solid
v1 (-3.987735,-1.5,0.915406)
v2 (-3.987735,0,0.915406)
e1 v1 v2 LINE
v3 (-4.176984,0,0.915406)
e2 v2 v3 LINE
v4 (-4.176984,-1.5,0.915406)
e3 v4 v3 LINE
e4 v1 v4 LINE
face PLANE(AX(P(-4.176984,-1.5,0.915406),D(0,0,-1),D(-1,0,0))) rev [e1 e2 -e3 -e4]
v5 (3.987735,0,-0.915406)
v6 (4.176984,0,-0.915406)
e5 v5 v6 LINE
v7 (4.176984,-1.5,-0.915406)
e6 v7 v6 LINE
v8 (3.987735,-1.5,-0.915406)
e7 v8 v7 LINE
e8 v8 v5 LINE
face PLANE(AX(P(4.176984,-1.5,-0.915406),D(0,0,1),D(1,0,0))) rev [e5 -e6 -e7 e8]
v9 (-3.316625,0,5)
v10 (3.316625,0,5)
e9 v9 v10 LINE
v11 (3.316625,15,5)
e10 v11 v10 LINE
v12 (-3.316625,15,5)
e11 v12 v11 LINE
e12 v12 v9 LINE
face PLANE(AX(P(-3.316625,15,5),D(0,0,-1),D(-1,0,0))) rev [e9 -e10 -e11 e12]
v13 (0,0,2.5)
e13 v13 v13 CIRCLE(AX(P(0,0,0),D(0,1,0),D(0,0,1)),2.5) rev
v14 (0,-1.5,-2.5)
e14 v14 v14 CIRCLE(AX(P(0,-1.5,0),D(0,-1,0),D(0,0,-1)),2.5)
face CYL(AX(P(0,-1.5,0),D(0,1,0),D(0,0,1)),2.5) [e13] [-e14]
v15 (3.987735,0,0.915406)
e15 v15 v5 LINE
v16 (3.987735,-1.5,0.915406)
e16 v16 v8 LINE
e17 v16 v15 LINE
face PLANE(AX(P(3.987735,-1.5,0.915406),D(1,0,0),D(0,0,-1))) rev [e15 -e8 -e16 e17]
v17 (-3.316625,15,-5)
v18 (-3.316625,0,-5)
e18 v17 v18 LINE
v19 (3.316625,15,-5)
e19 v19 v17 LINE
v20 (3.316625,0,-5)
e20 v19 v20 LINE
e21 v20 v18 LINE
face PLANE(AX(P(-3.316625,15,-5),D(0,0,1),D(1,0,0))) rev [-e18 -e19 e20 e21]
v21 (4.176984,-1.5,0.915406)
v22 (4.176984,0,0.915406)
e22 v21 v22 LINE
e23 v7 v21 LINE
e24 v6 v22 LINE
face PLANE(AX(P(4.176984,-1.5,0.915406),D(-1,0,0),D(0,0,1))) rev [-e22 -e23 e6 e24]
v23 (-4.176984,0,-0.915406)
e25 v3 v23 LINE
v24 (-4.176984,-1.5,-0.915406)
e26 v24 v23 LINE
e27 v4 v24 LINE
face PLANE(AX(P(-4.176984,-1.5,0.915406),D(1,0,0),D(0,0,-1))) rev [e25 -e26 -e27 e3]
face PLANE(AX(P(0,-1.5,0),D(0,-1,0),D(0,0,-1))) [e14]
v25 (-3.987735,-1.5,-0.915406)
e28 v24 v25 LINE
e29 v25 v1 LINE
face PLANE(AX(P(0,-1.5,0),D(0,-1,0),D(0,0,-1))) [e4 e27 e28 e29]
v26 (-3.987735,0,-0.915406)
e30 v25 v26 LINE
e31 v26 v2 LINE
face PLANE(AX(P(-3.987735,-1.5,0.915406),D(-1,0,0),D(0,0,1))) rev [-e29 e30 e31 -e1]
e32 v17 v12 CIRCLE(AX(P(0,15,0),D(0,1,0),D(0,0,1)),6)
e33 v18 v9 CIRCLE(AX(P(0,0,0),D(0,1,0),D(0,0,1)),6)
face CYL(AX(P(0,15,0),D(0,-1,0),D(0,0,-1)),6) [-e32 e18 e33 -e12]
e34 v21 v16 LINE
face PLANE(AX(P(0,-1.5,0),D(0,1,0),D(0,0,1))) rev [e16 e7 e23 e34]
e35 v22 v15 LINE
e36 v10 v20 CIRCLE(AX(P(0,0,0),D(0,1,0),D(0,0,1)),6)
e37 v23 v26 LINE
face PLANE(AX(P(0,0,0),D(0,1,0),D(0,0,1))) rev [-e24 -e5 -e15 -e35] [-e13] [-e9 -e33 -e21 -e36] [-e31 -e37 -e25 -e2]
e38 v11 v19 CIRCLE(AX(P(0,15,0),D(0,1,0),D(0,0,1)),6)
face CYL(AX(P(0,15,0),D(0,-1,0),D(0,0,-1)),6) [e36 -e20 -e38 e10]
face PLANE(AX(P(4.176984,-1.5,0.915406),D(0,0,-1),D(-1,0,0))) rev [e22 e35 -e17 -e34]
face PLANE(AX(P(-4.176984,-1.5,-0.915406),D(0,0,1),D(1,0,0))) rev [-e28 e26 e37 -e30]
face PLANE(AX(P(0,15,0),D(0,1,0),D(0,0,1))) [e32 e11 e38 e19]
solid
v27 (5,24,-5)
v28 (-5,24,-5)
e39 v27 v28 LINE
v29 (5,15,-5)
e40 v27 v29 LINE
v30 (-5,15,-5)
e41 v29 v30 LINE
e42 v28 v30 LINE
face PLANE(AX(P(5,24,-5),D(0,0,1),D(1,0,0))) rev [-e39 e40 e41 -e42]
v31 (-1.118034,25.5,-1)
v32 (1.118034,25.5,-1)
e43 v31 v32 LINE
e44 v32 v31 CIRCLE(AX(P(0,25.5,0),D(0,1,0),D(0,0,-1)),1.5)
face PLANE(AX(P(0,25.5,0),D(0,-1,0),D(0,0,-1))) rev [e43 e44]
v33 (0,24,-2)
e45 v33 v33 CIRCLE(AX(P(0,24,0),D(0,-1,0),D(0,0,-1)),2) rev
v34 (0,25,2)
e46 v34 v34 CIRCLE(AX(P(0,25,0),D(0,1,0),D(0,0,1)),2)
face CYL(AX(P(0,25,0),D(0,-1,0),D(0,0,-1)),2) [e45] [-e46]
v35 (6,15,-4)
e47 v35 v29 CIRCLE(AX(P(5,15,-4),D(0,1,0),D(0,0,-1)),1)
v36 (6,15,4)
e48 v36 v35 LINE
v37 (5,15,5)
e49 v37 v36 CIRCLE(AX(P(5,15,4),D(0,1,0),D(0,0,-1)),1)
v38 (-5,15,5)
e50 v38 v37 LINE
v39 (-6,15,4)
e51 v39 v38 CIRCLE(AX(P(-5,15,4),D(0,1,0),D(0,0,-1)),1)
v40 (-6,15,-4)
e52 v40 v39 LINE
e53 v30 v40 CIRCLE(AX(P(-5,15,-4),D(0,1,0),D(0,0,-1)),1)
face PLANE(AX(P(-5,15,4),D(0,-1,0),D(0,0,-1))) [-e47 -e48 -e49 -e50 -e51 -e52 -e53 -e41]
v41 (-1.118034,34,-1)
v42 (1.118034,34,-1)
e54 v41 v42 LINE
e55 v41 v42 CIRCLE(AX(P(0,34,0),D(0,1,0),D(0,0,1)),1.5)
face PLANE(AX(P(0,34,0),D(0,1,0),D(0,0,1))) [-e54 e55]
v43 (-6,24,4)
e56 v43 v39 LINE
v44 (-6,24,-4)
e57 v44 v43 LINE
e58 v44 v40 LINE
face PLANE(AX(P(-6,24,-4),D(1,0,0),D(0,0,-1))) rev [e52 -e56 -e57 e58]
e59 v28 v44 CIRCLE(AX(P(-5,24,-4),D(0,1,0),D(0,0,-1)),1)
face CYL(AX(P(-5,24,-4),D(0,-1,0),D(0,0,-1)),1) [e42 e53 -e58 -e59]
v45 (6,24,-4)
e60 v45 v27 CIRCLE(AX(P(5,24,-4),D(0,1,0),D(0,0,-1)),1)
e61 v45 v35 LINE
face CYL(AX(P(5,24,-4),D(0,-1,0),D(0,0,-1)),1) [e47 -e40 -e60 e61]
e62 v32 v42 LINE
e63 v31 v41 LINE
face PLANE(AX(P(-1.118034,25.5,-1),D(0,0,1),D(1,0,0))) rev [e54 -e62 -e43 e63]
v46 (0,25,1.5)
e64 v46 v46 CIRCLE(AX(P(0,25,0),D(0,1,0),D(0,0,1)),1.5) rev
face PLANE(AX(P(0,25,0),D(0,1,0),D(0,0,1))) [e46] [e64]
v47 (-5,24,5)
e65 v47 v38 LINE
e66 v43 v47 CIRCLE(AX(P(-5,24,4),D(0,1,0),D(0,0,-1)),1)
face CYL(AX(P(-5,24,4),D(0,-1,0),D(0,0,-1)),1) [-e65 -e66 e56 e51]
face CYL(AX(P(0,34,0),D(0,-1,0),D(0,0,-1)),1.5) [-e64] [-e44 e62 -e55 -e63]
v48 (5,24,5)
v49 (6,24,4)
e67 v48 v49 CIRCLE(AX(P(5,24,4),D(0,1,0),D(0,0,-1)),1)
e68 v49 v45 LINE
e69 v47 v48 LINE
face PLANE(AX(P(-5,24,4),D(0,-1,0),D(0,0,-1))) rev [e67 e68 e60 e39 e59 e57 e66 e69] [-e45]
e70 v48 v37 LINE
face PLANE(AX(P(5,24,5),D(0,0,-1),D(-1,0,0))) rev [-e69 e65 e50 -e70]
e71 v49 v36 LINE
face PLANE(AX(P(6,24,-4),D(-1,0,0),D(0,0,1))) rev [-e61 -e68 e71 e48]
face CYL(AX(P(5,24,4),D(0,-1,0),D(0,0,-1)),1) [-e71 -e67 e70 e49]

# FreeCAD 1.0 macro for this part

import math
import FreeCAD as App
import Part
import Sketcher
from FreeCAD import Vector
Q = App.Units.Quantity

doc = App.newDocument("Part")
body = doc.addObject("PartDesign::Body", "Body")

# Sketch on XZ plane
sketch1 = doc.addObject("Sketcher::SketchObject", "Sketch")
body.addObject(sketch1)
sketch1.AttachmentSupport = (doc.XZ_Plane, [""])
sketch1.MapMode = "FlatFace"
sketch1.addGeometry([
    Part.LineSegment(Vector(3, -5, 0), Vector(-3, -5, 0)),
    Part.ArcOfCircle(Part.Circle(Vector(0, 0, 0), Vector(0, 0, 1), 6), math.radians(124), math.radians(236)),
    Part.LineSegment(Vector(-3, 5, 0), Vector(3, 5, 0)),
    Part.ArcOfCircle(Part.Circle(Vector(0, 0, 0), Vector(0, 0, 1), 6), math.radians(-56), math.radians(56)),
], False)
sketch1.addConstraint([
    Sketcher.Constraint("Coincident", 0, 2, 1, 2),
    Sketcher.Constraint("Coincident", 1, 1, 2, 1),
    Sketcher.Constraint("Coincident", 2, 2, 3, 2),
    Sketcher.Constraint("Coincident", 3, 1, 0, 1),
    Sketcher.Constraint("Horizontal", 0),
    Sketcher.Constraint("Horizontal", 2),
    Sketcher.Constraint("Coincident", 1, 3, -1, 1),
    Sketcher.Constraint("Coincident", 3, 3, -1, 1),
    Sketcher.Constraint("Equal", 1, 3),
    Sketcher.Constraint("Vertical", 0, 2, 1, 1),
    Sketcher.Constraint("Radius", 1, Q("6 mm")),
    Sketcher.Constraint("DistanceY", 0, 2, -1, 1, Q("5 mm")),
])
pad1 = doc.addObject("PartDesign::Pad", "Pad")
body.addObject(pad1)
pad1.Profile = sketch1
pad1.Length = 15
pad1.Reversed = True

# Sketch on XZ plane
sketch2 = doc.addObject("Sketcher::SketchObject", "Sketch001")
body.addObject(sketch2)
sketch2.AttachmentSupport = (doc.XZ_Plane, [""])
sketch2.MapMode = "FlatFace"
sketch2.addGeometry([
    Part.Circle(Vector(0, 0, 0), Vector(0, 0, 1), 2.5),  # 0
    Part.LineSegment(Vector(-3.99, -0.92, 0), Vector(-3.99, 0.92, 0)),  # 1
    Part.LineSegment(Vector(-3.99, 0.92, 0), Vector(-4.18, 0.92, 0)),  # 2
    Part.LineSegment(Vector(-4.18, 0.92, 0), Vector(-4.18, -0.92, 0)),  # 3
    Part.LineSegment(Vector(-4.18, -0.92, 0), Vector(-3.99, -0.92, 0)),  # 4
    Part.LineSegment(Vector(4.18, -0.92, 0), Vector(4.18, 0.92, 0)),  # 5
    Part.LineSegment(Vector(4.18, 0.92, 0), Vector(3.99, 0.92, 0)),  # 6
    Part.LineSegment(Vector(3.99, 0.92, 0), Vector(3.99, -0.92, 0)),  # 7
    Part.LineSegment(Vector(3.99, -0.92, 0), Vector(4.18, -0.92, 0)),  # 8
], False)
sketch2.addConstraint([
    Sketcher.Constraint("Coincident", 1, 2, 2, 1),
    Sketcher.Constraint("Coincident", 2, 2, 3, 1),
    Sketcher.Constraint("Coincident", 3, 2, 4, 1),
    Sketcher.Constraint("Coincident", 4, 2, 1, 1),
    Sketcher.Constraint("Coincident", 5, 2, 6, 1),
    Sketcher.Constraint("Coincident", 6, 2, 7, 1),
    Sketcher.Constraint("Coincident", 7, 2, 8, 1),
    Sketcher.Constraint("Coincident", 8, 2, 5, 1),
    Sketcher.Constraint("Vertical", 1),
    Sketcher.Constraint("Horizontal", 2),
    Sketcher.Constraint("Vertical", 3),
    Sketcher.Constraint("Horizontal", 4),
    Sketcher.Constraint("Vertical", 5),
    Sketcher.Constraint("Horizontal", 6),
    Sketcher.Constraint("Vertical", 7),
    Sketcher.Constraint("Horizontal", 8),
    Sketcher.Constraint("Coincident", 0, 3, -1, 1),
    Sketcher.Constraint("Symmetric", 3, 2, 5, 2, -1, 1),
    Sketcher.Constraint("Symmetric", 1, 2, 7, 2, -1, 1),
    Sketcher.Constraint("Horizontal", 2, 2, 5, 2),
    Sketcher.Constraint("Diameter", 0, Q("5 mm")),
    Sketcher.Constraint("DistanceX", 2, 2, 2, 1, Q("0.189248 mm")),
    Sketcher.Constraint("DistanceY", 1, 1, 1, 2, Q("1.830812 mm")),
    Sketcher.Constraint("DistanceX", 1, 2, 5, 2, Q("8.164719 mm")),
])
pad2 = doc.addObject("PartDesign::Pad", "Pad001")
body.addObject(pad2)
pad2.Profile = sketch2
pad2.Length = 1.5
body2 = doc.addObject("PartDesign::Body", "Body001")

# Sketch on XZ plane
sketch3 = doc.addObject("Sketcher::SketchObject", "Sketch002")
body2.addObject(sketch3)
sketch3.AttachmentSupport = (doc.getObject("XZ_Plane001"), [""])
sketch3.MapMode = "FlatFace"
sketch3.AttachmentOffset = App.Placement(Vector(0, 0, -15), App.Rotation())
sketch3.addGeometry([
    Part.LineSegment(Vector(5, -5, 0), Vector(-5, -5, 0)),  # 0
    Part.ArcOfCircle(Part.Circle(Vector(-5, -4, 0), Vector(0, 0, 1), 1), math.radians(-180), math.radians(-90)),  # 1
    Part.LineSegment(Vector(-6, -4, 0), Vector(-6, 4, 0)),  # 2
    Part.ArcOfCircle(Part.Circle(Vector(-5, 4, 0), Vector(0, 0, 1), 1), math.radians(90), math.radians(180)),  # 3
    Part.LineSegment(Vector(-5, 5, 0), Vector(5, 5, 0)),  # 4
    Part.ArcOfCircle(Part.Circle(Vector(5, 4, 0), Vector(0, 0, 1), 1), math.radians(0), math.radians(90)),  # 5
    Part.LineSegment(Vector(6, 4, 0), Vector(6, -4, 0)),  # 6
    Part.ArcOfCircle(Part.Circle(Vector(5, -4, 0), Vector(0, 0, 1), 1), math.radians(-90), math.radians(0)),  # 7
], False)
sketch3.addConstraint([
    Sketcher.Constraint("Tangent", 0, 2, 1, 2),
    Sketcher.Constraint("Tangent", 1, 1, 2, 1),
    Sketcher.Constraint("Tangent", 2, 2, 3, 2),
    Sketcher.Constraint("Tangent", 3, 1, 4, 1),
    Sketcher.Constraint("Tangent", 4, 2, 5, 2),
    Sketcher.Constraint("Tangent", 5, 1, 6, 1),
    Sketcher.Constraint("Tangent", 6, 2, 7, 2),
    Sketcher.Constraint("Tangent", 7, 1, 0, 1),
    Sketcher.Constraint("Horizontal", 0),
    Sketcher.Constraint("Vertical", 2),
    Sketcher.Constraint("Horizontal", 4),
    Sketcher.Constraint("Vertical", 6),
    Sketcher.Constraint("Equal", 1, 3),
    Sketcher.Constraint("Equal", 3, 5),
    Sketcher.Constraint("Equal", 5, 7),
    Sketcher.Constraint("Symmetric", 1, 3, 5, 3, -1, 1),
    Sketcher.Constraint("Radius", 1, Q("1 mm")),
    Sketcher.Constraint("DistanceX", 0, 2, 0, 1, Q("10 mm")),
    Sketcher.Constraint("DistanceY", 2, 1, 2, 2, Q("8 mm")),
])
pad3 = doc.addObject("PartDesign::Pad", "Pad002")
body2.addObject(pad3)
pad3.Profile = sketch3
pad3.Length = 9
pad3.Reversed = True

# Sketch on XZ plane
sketch4 = doc.addObject("Sketcher::SketchObject", "Sketch003")
body2.addObject(sketch4)
sketch4.AttachmentSupport = (doc.getObject("XZ_Plane001"), [""])
sketch4.MapMode = "FlatFace"
sketch4.AttachmentOffset = App.Placement(Vector(0, 0, -24), App.Rotation())
sketch4.addGeometry(Part.Circle(Vector(0, 0, 0), Vector(0, 0, 1), 2), False)
sketch4.addConstraint([
    Sketcher.Constraint("Coincident", 0, 3, -1, 1),
    Sketcher.Constraint("Diameter", 0, Q("4 mm")),
])
pad4 = doc.addObject("PartDesign::Pad", "Pad003")
body2.addObject(pad4)
pad4.Profile = sketch4
pad4.Length = 1
pad4.Reversed = True

# Sketch on XZ plane
sketch5 = doc.addObject("Sketcher::SketchObject", "Sketch004")
body2.addObject(sketch5)
sketch5.AttachmentSupport = (doc.getObject("XZ_Plane001"), [""])
sketch5.MapMode = "FlatFace"
sketch5.AttachmentOffset = App.Placement(Vector(0, 0, -24), App.Rotation())
sketch5.addGeometry(Part.Circle(Vector(0, 0, 0), Vector(0, 0, 1), 1.5), False)
sketch5.addConstraint([
    Sketcher.Constraint("Coincident", 0, 3, -1, 1),
    Sketcher.Constraint("Diameter", 0, Q("3 mm")),
])
pad5 = doc.addObject("PartDesign::Pad", "Pad004")
body2.addObject(pad5)
pad5.Profile = sketch5
pad5.Length = 10
pad5.Reversed = True

# Sketch on XZ plane
sketch6 = doc.addObject("Sketcher::SketchObject", "Sketch005")
body2.addObject(sketch6)
sketch6.AttachmentSupport = (doc.getObject("XZ_Plane001"), [""])
sketch6.MapMode = "FlatFace"
sketch6.AttachmentOffset = App.Placement(Vector(0, 0, -34), App.Rotation())
sketch6.addGeometry([
    Part.LineSegment(Vector(-1.1, -1, 0), Vector(1.1, -1, 0)),
    Part.ArcOfCircle(Part.Circle(Vector(0, 0, 0), Vector(0, 0, 1), 1.5), math.radians(-138), math.radians(-42)),
], False)
sketch6.addConstraint([
    Sketcher.Constraint("Coincident", 0, 1, 1, 1),
    Sketcher.Constraint("Coincident", 1, 2, 0, 2),
    Sketcher.Constraint("Horizontal", 0),
    Sketcher.Constraint("Coincident", 1, 3, -1, 1),
    Sketcher.Constraint("Radius", 1, Q("1.5 mm")),
    Sketcher.Constraint("DistanceY", 0, 1, -1, 1, Q("1 mm")),
])
pocket1 = doc.addObject("PartDesign::Pocket", "Pocket")
body2.addObject(pocket1)
pocket1.Profile = sketch6
pocket1.Length = 8.5
pocket1.Reversed = True

doc.recompute()
